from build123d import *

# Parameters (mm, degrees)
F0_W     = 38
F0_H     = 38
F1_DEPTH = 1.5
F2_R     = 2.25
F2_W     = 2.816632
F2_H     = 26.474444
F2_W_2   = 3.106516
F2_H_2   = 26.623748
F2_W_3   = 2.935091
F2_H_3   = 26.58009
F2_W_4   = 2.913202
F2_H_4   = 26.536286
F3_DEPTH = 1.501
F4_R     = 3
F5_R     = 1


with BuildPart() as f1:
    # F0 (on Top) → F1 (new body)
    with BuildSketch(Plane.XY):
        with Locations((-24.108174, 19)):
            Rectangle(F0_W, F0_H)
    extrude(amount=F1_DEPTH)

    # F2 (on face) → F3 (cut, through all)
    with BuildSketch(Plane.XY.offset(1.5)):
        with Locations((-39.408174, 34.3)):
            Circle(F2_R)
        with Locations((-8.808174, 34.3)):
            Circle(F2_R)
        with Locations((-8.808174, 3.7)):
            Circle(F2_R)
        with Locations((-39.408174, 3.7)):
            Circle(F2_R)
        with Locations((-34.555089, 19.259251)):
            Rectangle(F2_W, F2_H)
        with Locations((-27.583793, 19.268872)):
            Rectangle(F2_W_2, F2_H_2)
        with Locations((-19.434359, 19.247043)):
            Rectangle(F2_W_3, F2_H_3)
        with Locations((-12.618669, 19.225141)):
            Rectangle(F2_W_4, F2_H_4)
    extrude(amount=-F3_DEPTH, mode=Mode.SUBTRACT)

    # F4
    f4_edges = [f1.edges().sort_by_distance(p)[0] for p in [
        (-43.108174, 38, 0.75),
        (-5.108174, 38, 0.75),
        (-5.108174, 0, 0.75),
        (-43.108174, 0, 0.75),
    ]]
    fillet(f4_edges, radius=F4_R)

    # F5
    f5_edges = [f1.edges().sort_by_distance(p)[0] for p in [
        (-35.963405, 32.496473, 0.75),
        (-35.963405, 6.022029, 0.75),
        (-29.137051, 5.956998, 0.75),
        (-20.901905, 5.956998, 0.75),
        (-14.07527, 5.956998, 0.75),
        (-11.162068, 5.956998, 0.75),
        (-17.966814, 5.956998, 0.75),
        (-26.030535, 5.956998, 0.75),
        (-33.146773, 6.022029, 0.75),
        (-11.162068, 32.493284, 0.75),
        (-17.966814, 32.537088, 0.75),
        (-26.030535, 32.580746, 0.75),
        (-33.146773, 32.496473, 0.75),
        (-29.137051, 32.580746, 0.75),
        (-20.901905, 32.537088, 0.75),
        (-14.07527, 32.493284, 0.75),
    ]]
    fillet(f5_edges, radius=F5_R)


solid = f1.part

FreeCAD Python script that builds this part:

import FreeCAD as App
import Part
import Sketcher

V = App.Vector
Q = App.Units.Quantity


def edges_at(feature, points):
    """Names of the edges that pass closest to the given points."""
    edges = feature.Shape.Edges
    near = lambda p: min(range(len(edges)), key=lambda i: edges[i].distToShape(Part.Vertex(*p))[0])
    return sorted({f"Edge{near(p) + 1}" for p in points})


def add_polygon(sketch, points):
    """Adds a closed chain of lines whose ends are joined by coincident constraints."""
    first, n = sketch.GeometryCount, len(points)
    for a, b in zip(points, points[1:] + points[:1]):
        sketch.addGeometry(Part.LineSegment(App.Vector(*a, 0), App.Vector(*b, 0)), False)
    for i in range(n):
        sketch.addConstraint(Sketcher.Constraint("Coincident", first + i, 2, first + (i + 1) % n, 1))

doc = App.newDocument("Part")
body = doc.addObject("PartDesign::Body", "Body")

# Sketch on XY plane
sketch1 = body.newObject("Sketcher::SketchObject", "Sketch")
sketch1.AttachmentSupport = (doc.getObject("XY_Plane"), [""])
sketch1.MapMode = "FlatFace"
add_polygon(sketch1, [(-43.108174, 38), (-43.108174, 0), (-5.108174, 0), (-5.108174, 38)])  # lines 0-3
sketch1.addConstraint(Sketcher.Constraint("Vertical", 0))
sketch1.addConstraint(Sketcher.Constraint("Horizontal", 1))
sketch1.addConstraint(Sketcher.Constraint("Vertical", 2))
sketch1.addConstraint(Sketcher.Constraint("Horizontal", 3))
sketch1.addConstraint(Sketcher.Constraint("PointOnObject", 0, 2, -1))
sketch1.addConstraint(Sketcher.Constraint("Equal", 3, 0))
sketch1.addConstraint(Sketcher.Constraint("DistanceX", 1, 1, 1, 2, Q("38 mm")))
sketch1.addConstraint(Sketcher.Constraint("DistanceX", 0, 2, -1, 1, Q("43.108174 mm")))
pad1 = body.newObject("PartDesign::Pad", "Pad")
pad1.Profile = sketch1
pad1.Length = 1.5

# Sketch on XY plane
sketch2 = body.newObject("Sketcher::SketchObject", "Sketch001")
sketch2.AttachmentSupport = (doc.getObject("XY_Plane"), [""])
sketch2.MapMode = "FlatFace"
sketch2.AttachmentOffset = App.Placement(V(0, 0, 1.5), App.Rotation())
sketch2.addGeometry(Part.Circle(V(-39.408174, 34.3, 0), V(0, 0, 1), 2.25), False)  # 0
sketch2.addGeometry(Part.Circle(V(-8.808174, 34.3, 0), V(0, 0, 1), 2.25), False)  # 1
sketch2.addGeometry(Part.Circle(V(-8.808174, 3.7, 0), V(0, 0, 1), 2.25), False)  # 2
sketch2.addGeometry(Part.Circle(V(-39.408174, 3.7, 0), V(0, 0, 1), 2.25), False)  # 3
add_polygon(sketch2, [(-35.963405, 32.496473), (-35.963405, 6.022029), (-33.146773, 6.022029), (-33.146773, 32.496473)])  # lines 4-7
add_polygon(sketch2, [(-29.137051, 32.580746), (-29.137051, 5.956998), (-26.030535, 5.956998), (-26.030535, 32.580746)])  # lines 8-11
add_polygon(sketch2, [(-20.901905, 32.537088), (-20.901905, 5.956998), (-17.966814, 5.956998), (-17.966814, 32.537088)])  # lines 12-15
add_polygon(sketch2, [(-14.07527, 32.493284), (-14.07527, 5.956998), (-11.162068, 5.956998), (-11.162068, 32.493284)])  # lines 16-19
sketch2.addConstraint(Sketcher.Constraint("Vertical", 4))
sketch2.addConstraint(Sketcher.Constraint("Horizontal", 5))
sketch2.addConstraint(Sketcher.Constraint("Vertical", 6))
sketch2.addConstraint(Sketcher.Constraint("Horizontal", 7))
sketch2.addConstraint(Sketcher.Constraint("Vertical", 8))
sketch2.addConstraint(Sketcher.Constraint("Horizontal", 9))
sketch2.addConstraint(Sketcher.Constraint("Vertical", 10))
sketch2.addConstraint(Sketcher.Constraint("Horizontal", 11))
sketch2.addConstraint(Sketcher.Constraint("Vertical", 12))
sketch2.addConstraint(Sketcher.Constraint("Horizontal", 13))
sketch2.addConstraint(Sketcher.Constraint("Vertical", 14))
sketch2.addConstraint(Sketcher.Constraint("Horizontal", 15))
sketch2.addConstraint(Sketcher.Constraint("Vertical", 16))
sketch2.addConstraint(Sketcher.Constraint("Horizontal", 17))
sketch2.addConstraint(Sketcher.Constraint("Vertical", 18))
sketch2.addConstraint(Sketcher.Constraint("Horizontal", 19))
sketch2.addConstraint(Sketcher.Constraint("Equal", 0, 1))
sketch2.addConstraint(Sketcher.Constraint("Equal", 1, 2))
sketch2.addConstraint(Sketcher.Constraint("Equal", 2, 3))
sketch2.addConstraint(Sketcher.Constraint("Horizontal", 0, 3, 1, 3))
sketch2.addConstraint(Sketcher.Constraint("Horizontal", 2, 3, 3, 3))
sketch2.addConstraint(Sketcher.Constraint("Horizontal", 9, 2, 12, 2))
sketch2.addConstraint(Sketcher.Constraint("Horizontal", 13, 2, 16, 2))
sketch2.addConstraint(Sketcher.Constraint("Vertical", 1, 3, 2, 3))
sketch2.addConstraint(Sketcher.Constraint("Vertical", 0, 3, 3, 3))
sketch2.addConstraint(Sketcher.Constraint("Diameter", 0, Q("4.5 mm")))
sketch2.addConstraint(Sketcher.Constraint("DistanceY", -1, 1, 0, 3, Q("34.3 mm")))
sketch2.addConstraint(Sketcher.Constraint("DistanceY", -1, 1, 2, 3, Q("3.7 mm")))
sketch2.addConstraint(Sketcher.Constraint("DistanceX", 0, 3, 1, 3, Q("30.6 mm")))
sketch2.addConstraint(Sketcher.Constraint("DistanceX", 5, 1, 5, 2, Q("2.816632 mm")))
sketch2.addConstraint(Sketcher.Constraint("DistanceX", 13, 1, 13, 2, Q("2.935091 mm")))
sketch2.addConstraint(Sketcher.Constraint("DistanceY", 12, 2, 12, 1, Q("26.58009 mm")))
sketch2.addConstraint(Sketcher.Constraint("DistanceX", 3, 3, 5, 2, Q("6.261401 mm")))
sketch2.addConstraint(Sketcher.Constraint("DistanceX", 4, 2, 12, 2, Q("15.061501 mm")))
sketch2.addConstraint(Sketcher.Constraint("DistanceX", 9, 1, 9, 2, Q("3.106516 mm")))
sketch2.addConstraint(Sketcher.Constraint("DistanceX", 17, 1, 17, 2, Q("2.913202 mm")))
sketch2.addConstraint(Sketcher.Constraint("DistanceY", 4, 2, 4, 1, Q("26.474444 mm")))
sketch2.addConstraint(Sketcher.Constraint("DistanceY", 8, 2, 8, 1, Q("26.623748 mm")))
sketch2.addConstraint(Sketcher.Constraint("DistanceY", 16, 2, 16, 1, Q("26.536286 mm")))
sketch2.addConstraint(Sketcher.Constraint("DistanceY", -1, 1, 4, 2, Q("6.022029 mm")))
sketch2.addConstraint(Sketcher.Constraint("DistanceX", 8, 2, -1, 1, Q("29.137051 mm")))
sketch2.addConstraint(Sketcher.Constraint("DistanceX", 16, 2, -1, 1, Q("14.07527 mm")))
sketch2.addConstraint(Sketcher.Constraint("DistanceY", 8, 2, 5, 2, Q("0.065031 mm")))
sketch2.addConstraint(Sketcher.Constraint("DistanceX", 5, 2, 9, 2, Q("7.116238 mm")))
pocket1 = body.newObject("PartDesign::Pocket", "Pocket")
pocket1.Profile = sketch2
pocket1.Type = "ThroughAll"
doc.recompute()

fillet = body.newObject("PartDesign::Fillet", "Fillet")
fillet.Base = (pocket1, edges_at(pocket1, [
    (-43.108, 38, 0.75),
    (-5.108, 38, 0.75),
    (-5.108, 0, 0.75),
    (-43.108, 0, 0.75),
]))
fillet.Radius = 3
doc.recompute()

fillet2 = body.newObject("PartDesign::Fillet", "Fillet001")
fillet2.Base = (fillet, edges_at(fillet, [
    (-35.963, 32.496, 0.75),
    (-35.963, 6.022, 0.75),
    (-29.137, 5.957, 0.75),
    (-20.902, 5.957, 0.75),
    (-14.075, 5.957, 0.75),
    (-11.162, 5.957, 0.75),
    (-17.967, 5.957, 0.75),
    (-26.031, 5.957, 0.75),
    (-33.147, 6.022, 0.75),
    (-11.162, 32.493, 0.75),
    (-17.967, 32.537, 0.75),
    (-26.031, 32.581, 0.75),
    (-33.147, 32.496, 0.75),
    (-29.137, 32.581, 0.75),
    (-20.902, 32.537, 0.75),
    (-14.075, 32.493, 0.75),
]))
fillet2.Radius = 1

doc.recompute()
